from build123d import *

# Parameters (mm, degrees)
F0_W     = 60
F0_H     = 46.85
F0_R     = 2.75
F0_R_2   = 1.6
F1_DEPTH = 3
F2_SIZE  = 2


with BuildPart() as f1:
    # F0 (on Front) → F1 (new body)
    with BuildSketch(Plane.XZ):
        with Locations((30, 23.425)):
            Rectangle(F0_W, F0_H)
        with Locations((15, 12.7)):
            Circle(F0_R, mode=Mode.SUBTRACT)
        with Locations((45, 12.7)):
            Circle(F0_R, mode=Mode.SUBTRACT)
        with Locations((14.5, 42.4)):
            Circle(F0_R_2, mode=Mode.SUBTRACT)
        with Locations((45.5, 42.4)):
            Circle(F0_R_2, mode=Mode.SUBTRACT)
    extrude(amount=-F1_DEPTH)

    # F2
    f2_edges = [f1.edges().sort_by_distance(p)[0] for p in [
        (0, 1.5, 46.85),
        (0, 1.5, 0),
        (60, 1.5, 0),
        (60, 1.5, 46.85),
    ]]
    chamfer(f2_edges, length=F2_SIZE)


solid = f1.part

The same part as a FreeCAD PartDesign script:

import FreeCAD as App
import Part
import Sketcher

V = App.Vector
Q = App.Units.Quantity


def edges_at(feature, points):
    """Names of the edges that pass closest to the given points."""
    edges = feature.Shape.Edges
    near = lambda p: min(range(len(edges)), key=lambda i: edges[i].distToShape(Part.Vertex(*p))[0])
    return sorted({f"Edge{near(p) + 1}" for p in points})

doc = App.newDocument("Part")
body = doc.addObject("PartDesign::Body", "Body")

# Sketch on XZ plane
sketch1 = body.newObject("Sketcher::SketchObject", "Sketch")
sketch1.AttachmentSupport = (doc.getObject("XZ_Plane"), [""])
sketch1.MapMode = "FlatFace"
sketch1.addGeometry(Part.LineSegment(V(0, 46.85, 0), V(0, 0, 0)), False)
sketch1.addGeometry(Part.LineSegment(V(0, 0, 0), V(60, 0, 0)), False)
sketch1.addGeometry(Part.LineSegment(V(60, 0, 0), V(60, 46.85, 0)), False)
sketch1.addGeometry(Part.LineSegment(V(60, 46.85, 0), V(0, 46.85, 0)), False)
sketch1.addGeometry(Part.Circle(V(15, 12.7, 0), V(0, 0, 1), 2.75), False)
sketch1.addGeometry(Part.Circle(V(45, 12.7, 0), V(0, 0, 1), 2.75), False)
sketch1.addGeometry(Part.Circle(V(14.5, 42.4, 0), V(0, 0, 1), 1.6), False)
sketch1.addGeometry(Part.Circle(V(45.5, 42.4, 0), V(0, 0, 1), 1.6), False)
sketch1.addConstraint(Sketcher.Constraint("Coincident", 0, 2, 1, 1))
sketch1.addConstraint(Sketcher.Constraint("Coincident", 1, 2, 2, 1))
sketch1.addConstraint(Sketcher.Constraint("Coincident", 2, 2, 3, 1))
sketch1.addConstraint(Sketcher.Constraint("Coincident", 3, 2, 0, 1))
sketch1.addConstraint(Sketcher.Constraint("Vertical", 0))
sketch1.addConstraint(Sketcher.Constraint("Horizontal", 1))
sketch1.addConstraint(Sketcher.Constraint("Vertical", 2))
sketch1.addConstraint(Sketcher.Constraint("Horizontal", 3))
sketch1.addConstraint(Sketcher.Constraint("Coincident", 0, 2, -1, 1))
sketch1.addConstraint(Sketcher.Constraint("Equal", 4, 5))
sketch1.addConstraint(Sketcher.Constraint("Equal", 6, 7))
sketch1.addConstraint(Sketcher.Constraint("Horizontal", 4, 3, 5, 3))
sketch1.addConstraint(Sketcher.Constraint("Horizontal", 6, 3, 7, 3))
sketch1.addConstraint(Sketcher.Constraint("Diameter", 4, Q("5.5 mm")))
sketch1.addConstraint(Sketcher.Constraint("Diameter", 6, Q("3.2 mm")))
sketch1.addConstraint(Sketcher.Constraint("DistanceX", 1, 1, 1, 2, Q("60 mm")))
sketch1.addConstraint(Sketcher.Constraint("DistanceX", -1, 1, 4, 3, Q("15 mm")))
sketch1.addConstraint(Sketcher.Constraint("DistanceX", -1, 1, 5, 3, Q("45 mm")))
sketch1.addConstraint(Sketcher.Constraint("DistanceX", 6, 3, 7, 3, Q("31 mm")))
sketch1.addConstraint(Sketcher.Constraint("DistanceY", 0, 2, 0, 1, Q("46.85 mm")))
sketch1.addConstraint(Sketcher.Constraint("DistanceY", -1, 1, 4, 3, Q("12.7 mm")))
sketch1.addConstraint(Sketcher.Constraint("DistanceX", -1, 1, 6, 3, Q("14.5 mm")))
sketch1.addConstraint(Sketcher.Constraint("DistanceY", -1, 1, 6, 3, Q("42.4 mm")))
pad1 = body.newObject("PartDesign::Pad", "Pad")
pad1.Profile = sketch1
pad1.Length = 3
pad1.Reversed = True
doc.recompute()

chamfer = body.newObject("PartDesign::Chamfer", "Chamfer")
chamfer.Base = (pad1, edges_at(pad1, [
    (0, 1.5, 46.85),
    (0, 1.5, 0),
    (60, 1.5, 0),
    (60, 1.5, 46.85),
]))
chamfer.Size = 2

doc.recompute()
